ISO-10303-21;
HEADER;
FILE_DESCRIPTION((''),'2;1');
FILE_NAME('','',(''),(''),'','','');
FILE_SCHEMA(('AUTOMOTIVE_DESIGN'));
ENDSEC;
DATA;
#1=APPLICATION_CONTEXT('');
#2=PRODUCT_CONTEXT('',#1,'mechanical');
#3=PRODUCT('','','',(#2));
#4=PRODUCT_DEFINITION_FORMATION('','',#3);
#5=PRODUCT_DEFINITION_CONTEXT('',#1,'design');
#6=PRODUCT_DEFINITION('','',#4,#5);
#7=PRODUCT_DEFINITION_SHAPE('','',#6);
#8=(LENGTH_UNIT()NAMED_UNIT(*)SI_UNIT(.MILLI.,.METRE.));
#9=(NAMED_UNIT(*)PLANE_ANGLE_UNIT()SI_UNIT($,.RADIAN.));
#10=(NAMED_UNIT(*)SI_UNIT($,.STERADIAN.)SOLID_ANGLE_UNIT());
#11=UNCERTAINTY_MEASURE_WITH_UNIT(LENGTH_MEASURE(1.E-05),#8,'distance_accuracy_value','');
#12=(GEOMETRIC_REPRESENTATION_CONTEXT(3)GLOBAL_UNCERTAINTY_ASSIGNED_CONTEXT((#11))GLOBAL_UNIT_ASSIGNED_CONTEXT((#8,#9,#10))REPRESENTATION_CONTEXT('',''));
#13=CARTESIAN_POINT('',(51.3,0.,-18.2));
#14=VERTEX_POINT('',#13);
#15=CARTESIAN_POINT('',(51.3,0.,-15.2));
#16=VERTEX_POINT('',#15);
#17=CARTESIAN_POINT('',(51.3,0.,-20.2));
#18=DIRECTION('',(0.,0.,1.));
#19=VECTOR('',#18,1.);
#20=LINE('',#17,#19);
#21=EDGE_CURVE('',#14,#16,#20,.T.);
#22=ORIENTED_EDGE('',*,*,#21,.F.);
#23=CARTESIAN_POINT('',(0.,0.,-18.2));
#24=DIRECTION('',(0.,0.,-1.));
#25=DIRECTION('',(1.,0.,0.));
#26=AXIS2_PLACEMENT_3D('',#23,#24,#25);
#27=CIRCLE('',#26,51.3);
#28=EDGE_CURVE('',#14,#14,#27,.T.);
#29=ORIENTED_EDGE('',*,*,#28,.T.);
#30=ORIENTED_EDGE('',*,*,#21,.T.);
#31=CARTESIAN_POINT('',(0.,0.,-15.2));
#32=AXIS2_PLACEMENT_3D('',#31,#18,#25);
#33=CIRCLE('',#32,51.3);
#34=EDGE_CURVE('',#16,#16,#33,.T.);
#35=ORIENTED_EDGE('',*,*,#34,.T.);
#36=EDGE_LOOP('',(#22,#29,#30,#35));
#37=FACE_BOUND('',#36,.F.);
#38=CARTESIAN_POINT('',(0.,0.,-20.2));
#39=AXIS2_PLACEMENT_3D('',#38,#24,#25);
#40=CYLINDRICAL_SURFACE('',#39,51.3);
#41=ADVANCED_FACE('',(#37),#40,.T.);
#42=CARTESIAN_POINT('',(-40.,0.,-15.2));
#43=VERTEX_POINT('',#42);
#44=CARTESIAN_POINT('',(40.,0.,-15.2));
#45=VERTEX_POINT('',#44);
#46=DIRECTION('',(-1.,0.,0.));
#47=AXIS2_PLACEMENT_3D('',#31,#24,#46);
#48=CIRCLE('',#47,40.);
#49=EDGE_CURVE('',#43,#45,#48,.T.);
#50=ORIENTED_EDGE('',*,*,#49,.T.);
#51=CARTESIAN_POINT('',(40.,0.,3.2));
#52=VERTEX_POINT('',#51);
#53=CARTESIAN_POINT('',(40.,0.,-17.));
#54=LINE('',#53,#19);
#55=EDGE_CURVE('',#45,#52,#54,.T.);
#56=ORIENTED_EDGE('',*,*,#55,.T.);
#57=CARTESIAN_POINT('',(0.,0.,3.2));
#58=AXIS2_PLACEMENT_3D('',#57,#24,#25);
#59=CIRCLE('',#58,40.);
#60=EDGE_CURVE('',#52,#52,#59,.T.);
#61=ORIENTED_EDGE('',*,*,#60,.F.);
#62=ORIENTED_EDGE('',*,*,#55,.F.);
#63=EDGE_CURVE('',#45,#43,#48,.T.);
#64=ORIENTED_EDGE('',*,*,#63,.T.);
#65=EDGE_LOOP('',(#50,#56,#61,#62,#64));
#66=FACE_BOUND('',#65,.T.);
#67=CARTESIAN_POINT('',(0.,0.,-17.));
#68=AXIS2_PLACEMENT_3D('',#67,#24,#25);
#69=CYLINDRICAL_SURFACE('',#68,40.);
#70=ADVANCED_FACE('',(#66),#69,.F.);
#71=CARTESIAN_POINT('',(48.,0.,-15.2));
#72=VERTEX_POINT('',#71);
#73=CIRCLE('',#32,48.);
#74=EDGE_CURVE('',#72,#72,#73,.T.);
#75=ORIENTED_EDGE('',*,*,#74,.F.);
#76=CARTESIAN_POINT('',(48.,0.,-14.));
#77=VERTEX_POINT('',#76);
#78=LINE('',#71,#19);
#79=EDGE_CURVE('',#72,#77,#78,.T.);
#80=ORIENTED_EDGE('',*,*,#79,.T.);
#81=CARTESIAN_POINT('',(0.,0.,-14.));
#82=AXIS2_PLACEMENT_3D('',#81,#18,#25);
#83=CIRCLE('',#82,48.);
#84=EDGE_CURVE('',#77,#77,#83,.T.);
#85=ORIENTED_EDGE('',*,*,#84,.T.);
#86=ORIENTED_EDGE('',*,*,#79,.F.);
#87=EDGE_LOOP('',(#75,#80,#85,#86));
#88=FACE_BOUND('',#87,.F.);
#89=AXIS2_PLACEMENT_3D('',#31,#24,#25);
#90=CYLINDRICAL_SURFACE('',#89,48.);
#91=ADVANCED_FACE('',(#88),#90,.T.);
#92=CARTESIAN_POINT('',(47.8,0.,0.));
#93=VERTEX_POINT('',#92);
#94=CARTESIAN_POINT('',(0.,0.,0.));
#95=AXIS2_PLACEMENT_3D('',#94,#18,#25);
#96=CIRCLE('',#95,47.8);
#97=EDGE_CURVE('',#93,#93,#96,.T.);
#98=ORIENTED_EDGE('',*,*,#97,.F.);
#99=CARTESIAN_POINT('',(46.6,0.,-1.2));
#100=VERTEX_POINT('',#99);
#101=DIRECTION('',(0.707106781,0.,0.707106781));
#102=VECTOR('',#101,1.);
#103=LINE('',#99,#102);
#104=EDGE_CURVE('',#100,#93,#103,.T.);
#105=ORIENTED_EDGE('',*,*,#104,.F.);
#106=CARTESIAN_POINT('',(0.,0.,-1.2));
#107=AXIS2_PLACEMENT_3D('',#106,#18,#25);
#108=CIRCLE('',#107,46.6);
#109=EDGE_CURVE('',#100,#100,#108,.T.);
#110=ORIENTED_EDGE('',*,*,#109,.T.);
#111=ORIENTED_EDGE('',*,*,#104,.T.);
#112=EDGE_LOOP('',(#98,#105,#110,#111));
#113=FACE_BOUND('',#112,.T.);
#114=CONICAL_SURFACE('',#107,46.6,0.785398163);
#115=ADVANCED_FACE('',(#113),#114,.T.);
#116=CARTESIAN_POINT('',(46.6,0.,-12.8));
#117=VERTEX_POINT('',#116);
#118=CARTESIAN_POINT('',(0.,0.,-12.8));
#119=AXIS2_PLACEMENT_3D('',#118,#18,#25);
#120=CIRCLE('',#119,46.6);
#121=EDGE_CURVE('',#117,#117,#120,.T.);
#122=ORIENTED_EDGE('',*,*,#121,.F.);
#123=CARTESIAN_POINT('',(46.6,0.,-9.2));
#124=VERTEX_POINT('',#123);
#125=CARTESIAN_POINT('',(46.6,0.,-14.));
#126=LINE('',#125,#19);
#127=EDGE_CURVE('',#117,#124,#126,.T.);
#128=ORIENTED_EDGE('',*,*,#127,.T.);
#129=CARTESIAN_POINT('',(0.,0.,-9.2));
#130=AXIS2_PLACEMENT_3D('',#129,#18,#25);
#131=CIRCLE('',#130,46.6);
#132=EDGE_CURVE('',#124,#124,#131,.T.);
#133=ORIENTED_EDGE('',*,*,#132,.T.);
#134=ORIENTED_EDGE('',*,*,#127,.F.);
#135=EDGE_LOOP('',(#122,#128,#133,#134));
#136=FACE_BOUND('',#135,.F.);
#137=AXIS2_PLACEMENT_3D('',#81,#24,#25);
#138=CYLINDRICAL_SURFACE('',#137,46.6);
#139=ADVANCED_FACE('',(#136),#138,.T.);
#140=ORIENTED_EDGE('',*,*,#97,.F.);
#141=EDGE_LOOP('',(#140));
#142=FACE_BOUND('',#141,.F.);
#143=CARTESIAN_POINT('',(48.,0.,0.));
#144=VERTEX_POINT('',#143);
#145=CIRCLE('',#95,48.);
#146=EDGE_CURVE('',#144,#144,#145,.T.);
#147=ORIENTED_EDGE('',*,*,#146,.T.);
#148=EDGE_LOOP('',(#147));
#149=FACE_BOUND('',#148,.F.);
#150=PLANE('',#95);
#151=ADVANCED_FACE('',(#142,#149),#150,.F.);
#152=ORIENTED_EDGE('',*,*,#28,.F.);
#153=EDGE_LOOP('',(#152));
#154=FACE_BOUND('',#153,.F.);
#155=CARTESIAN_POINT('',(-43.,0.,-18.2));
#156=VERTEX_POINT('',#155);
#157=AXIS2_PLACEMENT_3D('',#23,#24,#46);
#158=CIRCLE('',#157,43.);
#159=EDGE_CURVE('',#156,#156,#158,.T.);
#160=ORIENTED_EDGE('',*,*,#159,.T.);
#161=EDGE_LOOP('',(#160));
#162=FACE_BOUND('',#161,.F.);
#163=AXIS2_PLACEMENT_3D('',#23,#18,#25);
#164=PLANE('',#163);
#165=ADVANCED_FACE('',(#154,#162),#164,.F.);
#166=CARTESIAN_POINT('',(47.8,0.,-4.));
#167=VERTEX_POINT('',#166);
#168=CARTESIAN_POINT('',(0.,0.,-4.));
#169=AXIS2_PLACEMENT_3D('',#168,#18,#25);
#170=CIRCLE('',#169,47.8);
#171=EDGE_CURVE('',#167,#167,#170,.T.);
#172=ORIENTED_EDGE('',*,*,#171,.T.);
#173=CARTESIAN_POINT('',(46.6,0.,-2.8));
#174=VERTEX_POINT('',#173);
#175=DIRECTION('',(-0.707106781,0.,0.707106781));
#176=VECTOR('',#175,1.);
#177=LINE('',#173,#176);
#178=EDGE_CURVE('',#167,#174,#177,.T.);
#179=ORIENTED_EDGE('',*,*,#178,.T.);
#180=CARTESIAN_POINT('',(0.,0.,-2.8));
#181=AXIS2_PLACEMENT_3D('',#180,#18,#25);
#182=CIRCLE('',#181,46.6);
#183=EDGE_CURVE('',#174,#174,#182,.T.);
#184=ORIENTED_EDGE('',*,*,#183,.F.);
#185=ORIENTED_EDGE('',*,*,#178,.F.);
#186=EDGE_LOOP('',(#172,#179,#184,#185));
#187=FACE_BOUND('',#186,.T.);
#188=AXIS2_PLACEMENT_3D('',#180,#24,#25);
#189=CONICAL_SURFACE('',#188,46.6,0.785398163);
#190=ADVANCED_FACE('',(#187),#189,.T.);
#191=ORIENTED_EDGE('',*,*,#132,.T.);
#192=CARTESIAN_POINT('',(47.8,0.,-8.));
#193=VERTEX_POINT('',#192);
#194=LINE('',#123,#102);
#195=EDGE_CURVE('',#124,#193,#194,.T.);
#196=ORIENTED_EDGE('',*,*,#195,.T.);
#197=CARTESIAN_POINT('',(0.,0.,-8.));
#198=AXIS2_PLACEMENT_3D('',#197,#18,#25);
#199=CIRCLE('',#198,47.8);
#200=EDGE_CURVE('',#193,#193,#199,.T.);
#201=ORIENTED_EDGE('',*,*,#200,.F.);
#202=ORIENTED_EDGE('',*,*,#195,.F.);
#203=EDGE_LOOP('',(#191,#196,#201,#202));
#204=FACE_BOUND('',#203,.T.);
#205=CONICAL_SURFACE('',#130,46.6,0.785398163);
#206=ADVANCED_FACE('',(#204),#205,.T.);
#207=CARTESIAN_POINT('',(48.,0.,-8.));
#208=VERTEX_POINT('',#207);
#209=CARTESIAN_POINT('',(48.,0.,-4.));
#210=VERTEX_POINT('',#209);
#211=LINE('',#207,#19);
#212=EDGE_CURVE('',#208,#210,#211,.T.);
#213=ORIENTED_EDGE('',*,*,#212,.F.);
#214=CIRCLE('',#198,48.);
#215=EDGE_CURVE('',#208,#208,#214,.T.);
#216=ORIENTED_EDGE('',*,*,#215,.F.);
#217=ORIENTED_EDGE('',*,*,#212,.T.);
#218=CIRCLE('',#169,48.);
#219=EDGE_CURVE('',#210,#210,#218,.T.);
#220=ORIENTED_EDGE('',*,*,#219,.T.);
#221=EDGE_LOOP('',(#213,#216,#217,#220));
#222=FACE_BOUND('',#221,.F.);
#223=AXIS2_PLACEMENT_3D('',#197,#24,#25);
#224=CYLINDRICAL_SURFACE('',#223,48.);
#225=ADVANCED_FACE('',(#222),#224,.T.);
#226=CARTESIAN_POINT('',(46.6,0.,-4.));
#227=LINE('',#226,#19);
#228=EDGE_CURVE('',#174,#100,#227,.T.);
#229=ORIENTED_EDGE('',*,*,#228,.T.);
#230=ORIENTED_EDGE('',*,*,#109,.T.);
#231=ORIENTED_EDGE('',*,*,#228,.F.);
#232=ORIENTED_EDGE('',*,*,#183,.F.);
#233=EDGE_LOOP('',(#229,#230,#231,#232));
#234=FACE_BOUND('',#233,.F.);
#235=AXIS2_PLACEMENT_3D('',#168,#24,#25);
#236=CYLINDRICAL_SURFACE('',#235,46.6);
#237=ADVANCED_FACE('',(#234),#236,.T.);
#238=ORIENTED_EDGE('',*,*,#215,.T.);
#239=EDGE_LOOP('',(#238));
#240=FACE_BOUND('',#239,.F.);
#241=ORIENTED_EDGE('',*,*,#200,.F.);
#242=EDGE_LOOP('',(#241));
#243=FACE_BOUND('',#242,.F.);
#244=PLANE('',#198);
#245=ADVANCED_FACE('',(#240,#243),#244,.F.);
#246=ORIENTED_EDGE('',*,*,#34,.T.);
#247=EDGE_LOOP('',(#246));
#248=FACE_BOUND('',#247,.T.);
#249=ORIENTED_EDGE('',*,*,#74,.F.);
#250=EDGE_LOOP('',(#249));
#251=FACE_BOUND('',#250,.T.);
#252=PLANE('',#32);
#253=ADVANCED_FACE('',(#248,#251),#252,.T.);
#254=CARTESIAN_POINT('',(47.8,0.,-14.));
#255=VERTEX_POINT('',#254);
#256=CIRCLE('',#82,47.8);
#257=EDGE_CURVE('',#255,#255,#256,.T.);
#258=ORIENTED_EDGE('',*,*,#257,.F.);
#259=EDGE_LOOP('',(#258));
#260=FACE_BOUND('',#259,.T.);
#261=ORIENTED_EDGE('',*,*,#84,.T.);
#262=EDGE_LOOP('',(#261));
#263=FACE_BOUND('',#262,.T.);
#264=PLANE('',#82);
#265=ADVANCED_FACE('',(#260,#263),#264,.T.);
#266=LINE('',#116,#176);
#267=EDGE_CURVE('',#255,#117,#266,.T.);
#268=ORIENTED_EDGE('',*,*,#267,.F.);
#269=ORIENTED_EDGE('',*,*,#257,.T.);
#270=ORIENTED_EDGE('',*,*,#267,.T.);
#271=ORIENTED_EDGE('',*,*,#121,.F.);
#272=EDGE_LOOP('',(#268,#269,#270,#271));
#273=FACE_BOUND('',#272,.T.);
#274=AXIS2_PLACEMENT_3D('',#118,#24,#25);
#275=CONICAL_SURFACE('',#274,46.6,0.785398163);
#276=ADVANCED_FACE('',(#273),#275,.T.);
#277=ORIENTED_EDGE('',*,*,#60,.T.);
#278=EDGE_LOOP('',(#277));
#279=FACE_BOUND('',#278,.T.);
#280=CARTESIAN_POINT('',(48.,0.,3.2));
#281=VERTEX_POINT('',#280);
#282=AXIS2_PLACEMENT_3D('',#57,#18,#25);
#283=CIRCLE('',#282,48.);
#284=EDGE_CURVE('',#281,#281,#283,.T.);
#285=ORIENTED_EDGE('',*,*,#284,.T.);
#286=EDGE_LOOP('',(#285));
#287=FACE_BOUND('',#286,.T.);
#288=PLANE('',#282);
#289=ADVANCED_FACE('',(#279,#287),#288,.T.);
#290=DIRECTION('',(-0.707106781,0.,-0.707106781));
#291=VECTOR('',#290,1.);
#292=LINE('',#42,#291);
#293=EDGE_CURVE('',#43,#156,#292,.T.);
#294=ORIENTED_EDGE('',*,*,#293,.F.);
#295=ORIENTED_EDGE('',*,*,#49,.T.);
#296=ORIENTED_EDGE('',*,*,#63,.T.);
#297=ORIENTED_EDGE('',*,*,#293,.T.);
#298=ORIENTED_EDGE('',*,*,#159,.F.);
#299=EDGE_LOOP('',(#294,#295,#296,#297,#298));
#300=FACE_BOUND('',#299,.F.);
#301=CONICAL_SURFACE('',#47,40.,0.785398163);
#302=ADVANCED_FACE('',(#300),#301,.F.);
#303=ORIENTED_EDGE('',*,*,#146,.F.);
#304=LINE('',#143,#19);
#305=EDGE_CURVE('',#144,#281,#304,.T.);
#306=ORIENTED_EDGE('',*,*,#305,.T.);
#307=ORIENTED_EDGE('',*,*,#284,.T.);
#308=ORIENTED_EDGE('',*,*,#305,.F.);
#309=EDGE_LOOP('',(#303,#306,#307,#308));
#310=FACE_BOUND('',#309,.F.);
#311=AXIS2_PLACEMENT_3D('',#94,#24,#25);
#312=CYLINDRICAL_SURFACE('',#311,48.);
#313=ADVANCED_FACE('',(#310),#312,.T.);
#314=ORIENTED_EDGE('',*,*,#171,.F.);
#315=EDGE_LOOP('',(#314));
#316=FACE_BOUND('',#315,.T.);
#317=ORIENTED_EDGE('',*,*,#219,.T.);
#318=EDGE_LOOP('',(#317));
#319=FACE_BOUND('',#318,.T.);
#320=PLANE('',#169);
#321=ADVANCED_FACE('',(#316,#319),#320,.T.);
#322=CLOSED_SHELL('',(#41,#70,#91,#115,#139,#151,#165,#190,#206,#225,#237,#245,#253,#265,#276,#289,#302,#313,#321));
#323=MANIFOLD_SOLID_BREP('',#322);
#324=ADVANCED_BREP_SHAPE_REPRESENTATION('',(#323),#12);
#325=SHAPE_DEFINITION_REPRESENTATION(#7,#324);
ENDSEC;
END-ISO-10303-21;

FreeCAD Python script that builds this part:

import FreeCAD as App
import Part
import Sketcher


def edges_at(feature, points):
    """Names of the edges that pass closest to the given points."""
    edges = feature.Shape.Edges
    near = lambda p: min(range(len(edges)), key=lambda i: edges[i].distToShape(Part.Vertex(*p))[0])
    return sorted({f"Edge{near(p) + 1}" for p in points})


def add_polygon(sketch, points):
    """Adds a closed chain of lines whose ends are joined by coincident constraints."""
    first, n = sketch.GeometryCount, len(points)
    for a, b in zip(points, points[1:] + points[:1]):
        sketch.addGeometry(Part.LineSegment(App.Vector(*a, 0), App.Vector(*b, 0)), False)
    for i in range(n):
        sketch.addConstraint(Sketcher.Constraint("Coincident", first + i, 2, first + (i + 1) % n, 1))

doc = App.newDocument("Part")
body = doc.addObject("PartDesign::Body", "Body")

sketch1 = doc.addObject("Sketcher::SketchObject", "Sketch")
body.addObject(sketch1)
sketch1.AttachmentSupport = (doc.XY_Plane, [""])
sketch1.MapMode = "FlatFace"
sketch1.AttachmentOffset = App.Placement(App.Vector(0, 0, -23.2), App.Rotation())
sketch1.addGeometry(Part.Circle(App.Vector(0, 0, 0), App.Vector(0, 0, 1), 68), False)
sketch1.addConstraint(Sketcher.Constraint("Coincident", 0, 3, -1, 1))
sketch1.addConstraint(Sketcher.Constraint("Diameter", 0, 136.6))
pad1 = doc.addObject("PartDesign::Pad", "Pad")
body.addObject(pad1)
pad1.Profile = sketch1
pad1.Length = 5
body2 = doc.addObject("PartDesign::Body", "Body001")

sketch2 = doc.addObject("Sketcher::SketchObject", "Sketch001")
body2.addObject(sketch2)
sketch2.AttachmentSupport = (doc.getObject("XZ_Plane001"), [""])
sketch2.MapMode = "FlatFace"
add_polygon(sketch2, [(0, -15), (-40, -15), (-45, -20), (0, -20)])
sketch2.addConstraint(Sketcher.Constraint("Horizontal", 0))
sketch2.addConstraint(Sketcher.Constraint("Horizontal", 2))
sketch2.addConstraint(Sketcher.Constraint("Vertical", 3))
sketch2.addConstraint(Sketcher.Constraint("PointOnObject", 2, 2, -2))
sketch2.addConstraint(Sketcher.Constraint("DistanceX", 0, 2, 0, 1, 40.0))
sketch2.addConstraint(Sketcher.Constraint("DistanceX", 2, 1, 2, 2, 45.0))
sketch2.addConstraint(Sketcher.Constraint("DistanceY", 3, 1, 3, 2, 5.0))
sketch2.addConstraint(Sketcher.Constraint("DistanceY", 0, 2, -1, 1, 15.2))
revolution = doc.addObject("PartDesign::Revolution", "Revolution")
body2.addObject(revolution)
revolution.Profile = sketch2
revolution.ReferenceAxis = (sketch2, ["V_Axis"])
revolution.Angle = 360
body3 = doc.addObject("PartDesign::Body", "Body002")

sketch3 = doc.addObject("Sketcher::SketchObject", "Sketch002")
body3.addObject(sketch3)
sketch3.AttachmentSupport = (doc.getObject("XY_Plane002"), [""])
sketch3.MapMode = "FlatFace"
sketch3.AttachmentOffset = App.Placement(App.Vector(0, 0, -17), App.Rotation())
sketch3.addGeometry(Part.Circle(App.Vector(0, 0, 0), App.Vector(0, 0, 1), 40), False)
sketch3.addConstraint(Sketcher.Constraint("Coincident", 0, 3, -1, 1))
sketch3.addConstraint(Sketcher.Constraint("Diameter", 0, 80.0))
pad2 = doc.addObject("PartDesign::Pad", "Pad001")
body3.addObject(pad2)
pad2.Profile = sketch3
pad2.Length = 27.4
doc.recompute()

boolean = doc.addObject("PartDesign::Boolean", "Boolean")
body3.addObject(boolean)
boolean.Type = "Fuse"
boolean.addObjects([body2])
body4 = doc.addObject("PartDesign::Body", "Body003")

sketch4 = doc.addObject("Sketcher::SketchObject", "Sketch003")
body4.addObject(sketch4)
sketch4.AttachmentSupport = (doc.getObject("XY_Plane003"), [""])
sketch4.MapMode = "FlatFace"
sketch4.AttachmentOffset = App.Placement(App.Vector(0, 0, -20.2), App.Rotation())
sketch4.addGeometry(Part.Circle(App.Vector(0, 0, 0), App.Vector(0, 0, 1), 45), False)
sketch4.addConstraint(Sketcher.Constraint("Coincident", 0, 3, -1, 1))
sketch4.addConstraint(Sketcher.Constraint("Diameter", 0, 90.0))
pad3 = doc.addObject("PartDesign::Pad", "Pad002")
body4.addObject(pad3)
pad3.Profile = sketch4
pad3.Length = 23.4
doc.recompute()

boolean2 = doc.addObject("PartDesign::Boolean", "Boolean001")
body4.addObject(boolean2)
boolean2.Type = "Cut"
boolean2.addObjects([body3])
body5 = doc.addObject("PartDesign::Body", "Body004")

sketch5 = doc.addObject("Sketcher::SketchObject", "Sketch004")
body5.addObject(sketch5)
sketch5.AttachmentSupport = (doc.getObject("XY_Plane004"), [""])
sketch5.MapMode = "FlatFace"
sketch5.AttachmentOffset = App.Placement(App.Vector(0, 0, -18), App.Rotation())
sketch5.addGeometry(Part.Circle(App.Vector(0, 0, 0), App.Vector(0, 0, 1), 45), False)
sketch5.addConstraint(Sketcher.Constraint("Coincident", 0, 3, -1, 1))
sketch5.addConstraint(Sketcher.Constraint("Diameter", 0, 90.0))
pad4 = doc.addObject("PartDesign::Pad", "Pad003")
body5.addObject(pad4)
pad4.Profile = sketch5
pad4.Length = 25
body6 = doc.addObject("PartDesign::Body", "Body005")

sketch6 = doc.addObject("Sketcher::SketchObject", "Sketch005")
body6.addObject(sketch6)
sketch6.AttachmentSupport = (doc.getObject("XY_Plane005"), [""])
sketch6.MapMode = "FlatFace"
sketch6.addGeometry(Part.Circle(App.Vector(0, 0, 0), App.Vector(0, 0, 1), 48), False)
sketch6.addConstraint(Sketcher.Constraint("Coincident", 0, 3, -1, 1))
sketch6.addConstraint(Sketcher.Constraint("Diameter", 0, 96.0))
pad5 = doc.addObject("PartDesign::Pad", "Pad004")
body6.addObject(pad5)
pad5.Profile = sketch6
pad5.Length = 3.2
body7 = doc.addObject("PartDesign::Body", "Body006")

sketch7 = doc.addObject("Sketcher::SketchObject", "Sketch006")
body7.addObject(sketch7)
sketch7.AttachmentSupport = (doc.getObject("XY_Plane006"), [""])
sketch7.MapMode = "FlatFace"
sketch7.AttachmentOffset = App.Placement(App.Vector(0, 0, -14), App.Rotation())
sketch7.addGeometry(Part.Circle(App.Vector(0, 0, 0), App.Vector(0, 0, 1), 47), False)
sketch7.addConstraint(Sketcher.Constraint("Coincident", 0, 3, -1, 1))
sketch7.addConstraint(Sketcher.Constraint("Diameter", 0, 93.2))
pad6 = doc.addObject("PartDesign::Pad", "Pad005")
body7.addObject(pad6)
pad6.Profile = sketch7
pad6.Length = 6
body8 = doc.addObject("PartDesign::Body", "Body007")

sketch8 = doc.addObject("Sketcher::SketchObject", "Sketch007")
body8.addObject(sketch8)
sketch8.AttachmentSupport = (doc.getObject("XY_Plane007"), [""])
sketch8.MapMode = "FlatFace"
sketch8.AttachmentOffset = App.Placement(App.Vector(0, 0, -4), App.Rotation())
sketch8.addGeometry(Part.Circle(App.Vector(0, 0, 0), App.Vector(0, 0, 1), 47), False)
sketch8.addConstraint(Sketcher.Constraint("Coincident", 0, 3, -1, 1))
sketch8.addConstraint(Sketcher.Constraint("Diameter", 0, 93.2))
pad7 = doc.addObject("PartDesign::Pad", "Pad006")
body8.addObject(pad7)
pad7.Profile = sketch8
pad7.Length = 4
body9 = doc.addObject("PartDesign::Body", "Body008")

sketch9 = doc.addObject("Sketcher::SketchObject", "Sketch008")
body9.addObject(sketch9)
sketch9.AttachmentSupport = (doc.getObject("XY_Plane008"), [""])
sketch9.MapMode = "FlatFace"
sketch9.AttachmentOffset = App.Placement(App.Vector(0, 0, -8), App.Rotation())
sketch9.addGeometry(Part.Circle(App.Vector(0, 0, 0), App.Vector(0, 0, 1), 48), False)
sketch9.addConstraint(Sketcher.Constraint("Coincident", 0, 3, -1, 1))
sketch9.addConstraint(Sketcher.Constraint("Diameter", 0, 96.0))
pad8 = doc.addObject("PartDesign::Pad", "Pad007")
body9.addObject(pad8)
pad8.Profile = sketch9
pad8.Length = 4
body10 = doc.addObject("PartDesign::Body", "Body009")
body10.AllowCompound = True

sketch10 = doc.addObject("Sketcher::SketchObject", "Sketch009")
body10.addObject(sketch10)
sketch10.AttachmentSupport = (doc.getObject("XY_Plane009"), [""])
sketch10.MapMode = "FlatFace"
sketch10.AttachmentOffset = App.Placement(App.Vector(0, 0, -15.2), App.Rotation())
sketch10.addGeometry(Part.Circle(App.Vector(0, 0, 0), App.Vector(0, 0, 1), 48), False)
sketch10.addConstraint(Sketcher.Constraint("Coincident", 0, 3, -1, 1))
sketch10.addConstraint(Sketcher.Constraint("Diameter", 0, 96.0))
pad9 = doc.addObject("PartDesign::Pad", "Pad008")
body10.addObject(pad9)
pad9.Profile = sketch10
pad9.Length = 1.2
doc.recompute()

boolean3 = doc.addObject("PartDesign::Boolean", "Boolean002")
body10.addObject(boolean3)
boolean3.Type = "Fuse"
boolean3.addObjects([body6])
doc.recompute()

boolean4 = doc.addObject("PartDesign::Boolean", "Boolean003")
body10.addObject(boolean4)
boolean4.Type = "Fuse"
boolean4.addObjects([body7])
doc.recompute()

boolean5 = doc.addObject("PartDesign::Boolean", "Boolean004")
body10.addObject(boolean5)
boolean5.Type = "Fuse"
boolean5.addObjects([body8])
doc.recompute()

boolean6 = doc.addObject("PartDesign::Boolean", "Boolean005")
body10.addObject(boolean6)
boolean6.Type = "Fuse"
boolean6.addObjects([body9])
doc.recompute()

boolean7 = doc.addObject("PartDesign::Boolean", "Boolean006")
body10.addObject(boolean7)
boolean7.Type = "Cut"
boolean7.addObjects([body5])
body11 = doc.addObject("PartDesign::Body", "Body010")

sketch11 = doc.addObject("Sketcher::SketchObject", "Sketch010")
body11.addObject(sketch11)
sketch11.AttachmentSupport = (doc.getObject("XY_Plane010"), [""])
sketch11.MapMode = "FlatFace"
sketch11.AttachmentOffset = App.Placement(App.Vector(0, 0, -23), App.Rotation())
sketch11.addGeometry(Part.Circle(App.Vector(0, 0, 0), App.Vector(0, 0, 1), 45), False)
sketch11.addConstraint(Sketcher.Constraint("Coincident", 0, 3, -1, 1))
sketch11.addConstraint(Sketcher.Constraint("Diameter", 0, 90.0))
pad10 = doc.addObject("PartDesign::Pad", "Pad009")
body11.addObject(pad10)
pad10.Profile = sketch11
pad10.Length = 25
body12 = doc.addObject("PartDesign::Body", "Body011")

sketch12 = doc.addObject("Sketcher::SketchObject", "Sketch011")
body12.addObject(sketch12)
sketch12.AttachmentSupport = (doc.getObject("XY_Plane011"), [""])
sketch12.MapMode = "FlatFace"
sketch12.AttachmentOffset = App.Placement(App.Vector(0, 0, -20.2), App.Rotation())
sketch12.addGeometry(Part.Circle(App.Vector(0, 0, 0), App.Vector(0, 0, 1), 51), False)
sketch12.addConstraint(Sketcher.Constraint("Coincident", 0, 3, -1, 1))
sketch12.addConstraint(Sketcher.Constraint("Diameter", 0, 102.6))
pad11 = doc.addObject("PartDesign::Pad", "Pad010")
body12.addObject(pad11)
pad11.Profile = sketch12
pad11.Length = 5
doc.recompute()

boolean8 = doc.addObject("PartDesign::Boolean", "Boolean007")
body12.addObject(boolean8)
boolean8.Type = "Cut"
boolean8.addObjects([body11])
doc.recompute()

boolean9 = doc.addObject("PartDesign::Boolean", "Boolean008")
body12.addObject(boolean9)
boolean9.Type = "Fuse"
boolean9.addObjects([body10])
doc.recompute()

boolean10 = doc.addObject("PartDesign::Boolean", "Boolean009")
body12.addObject(boolean10)
boolean10.Type = "Fuse"
boolean10.addObjects([body4])
doc.recompute()

chamfer = doc.addObject("PartDesign::Chamfer", "Chamfer")
body12.addObject(chamfer)
chamfer.Base = (boolean10, edges_at(boolean10, [(-46.6, 0, -14), (-46.6, 0, -4)]))
chamfer.Size = 1.2
doc.recompute()

chamfer2 = doc.addObject("PartDesign::Chamfer", "Chamfer001")
body12.addObject(chamfer2)
chamfer2.Base = (chamfer, edges_at(chamfer, [(-46.6, 0, -8), (-46.6, 0, 0)]))
chamfer2.Size = 1.2
doc.recompute()

boolean11 = doc.addObject("PartDesign::Boolean", "Boolean010")
body12.addObject(boolean11)
boolean11.Type = "Cut"
boolean11.addObjects([body])

doc.recompute()
